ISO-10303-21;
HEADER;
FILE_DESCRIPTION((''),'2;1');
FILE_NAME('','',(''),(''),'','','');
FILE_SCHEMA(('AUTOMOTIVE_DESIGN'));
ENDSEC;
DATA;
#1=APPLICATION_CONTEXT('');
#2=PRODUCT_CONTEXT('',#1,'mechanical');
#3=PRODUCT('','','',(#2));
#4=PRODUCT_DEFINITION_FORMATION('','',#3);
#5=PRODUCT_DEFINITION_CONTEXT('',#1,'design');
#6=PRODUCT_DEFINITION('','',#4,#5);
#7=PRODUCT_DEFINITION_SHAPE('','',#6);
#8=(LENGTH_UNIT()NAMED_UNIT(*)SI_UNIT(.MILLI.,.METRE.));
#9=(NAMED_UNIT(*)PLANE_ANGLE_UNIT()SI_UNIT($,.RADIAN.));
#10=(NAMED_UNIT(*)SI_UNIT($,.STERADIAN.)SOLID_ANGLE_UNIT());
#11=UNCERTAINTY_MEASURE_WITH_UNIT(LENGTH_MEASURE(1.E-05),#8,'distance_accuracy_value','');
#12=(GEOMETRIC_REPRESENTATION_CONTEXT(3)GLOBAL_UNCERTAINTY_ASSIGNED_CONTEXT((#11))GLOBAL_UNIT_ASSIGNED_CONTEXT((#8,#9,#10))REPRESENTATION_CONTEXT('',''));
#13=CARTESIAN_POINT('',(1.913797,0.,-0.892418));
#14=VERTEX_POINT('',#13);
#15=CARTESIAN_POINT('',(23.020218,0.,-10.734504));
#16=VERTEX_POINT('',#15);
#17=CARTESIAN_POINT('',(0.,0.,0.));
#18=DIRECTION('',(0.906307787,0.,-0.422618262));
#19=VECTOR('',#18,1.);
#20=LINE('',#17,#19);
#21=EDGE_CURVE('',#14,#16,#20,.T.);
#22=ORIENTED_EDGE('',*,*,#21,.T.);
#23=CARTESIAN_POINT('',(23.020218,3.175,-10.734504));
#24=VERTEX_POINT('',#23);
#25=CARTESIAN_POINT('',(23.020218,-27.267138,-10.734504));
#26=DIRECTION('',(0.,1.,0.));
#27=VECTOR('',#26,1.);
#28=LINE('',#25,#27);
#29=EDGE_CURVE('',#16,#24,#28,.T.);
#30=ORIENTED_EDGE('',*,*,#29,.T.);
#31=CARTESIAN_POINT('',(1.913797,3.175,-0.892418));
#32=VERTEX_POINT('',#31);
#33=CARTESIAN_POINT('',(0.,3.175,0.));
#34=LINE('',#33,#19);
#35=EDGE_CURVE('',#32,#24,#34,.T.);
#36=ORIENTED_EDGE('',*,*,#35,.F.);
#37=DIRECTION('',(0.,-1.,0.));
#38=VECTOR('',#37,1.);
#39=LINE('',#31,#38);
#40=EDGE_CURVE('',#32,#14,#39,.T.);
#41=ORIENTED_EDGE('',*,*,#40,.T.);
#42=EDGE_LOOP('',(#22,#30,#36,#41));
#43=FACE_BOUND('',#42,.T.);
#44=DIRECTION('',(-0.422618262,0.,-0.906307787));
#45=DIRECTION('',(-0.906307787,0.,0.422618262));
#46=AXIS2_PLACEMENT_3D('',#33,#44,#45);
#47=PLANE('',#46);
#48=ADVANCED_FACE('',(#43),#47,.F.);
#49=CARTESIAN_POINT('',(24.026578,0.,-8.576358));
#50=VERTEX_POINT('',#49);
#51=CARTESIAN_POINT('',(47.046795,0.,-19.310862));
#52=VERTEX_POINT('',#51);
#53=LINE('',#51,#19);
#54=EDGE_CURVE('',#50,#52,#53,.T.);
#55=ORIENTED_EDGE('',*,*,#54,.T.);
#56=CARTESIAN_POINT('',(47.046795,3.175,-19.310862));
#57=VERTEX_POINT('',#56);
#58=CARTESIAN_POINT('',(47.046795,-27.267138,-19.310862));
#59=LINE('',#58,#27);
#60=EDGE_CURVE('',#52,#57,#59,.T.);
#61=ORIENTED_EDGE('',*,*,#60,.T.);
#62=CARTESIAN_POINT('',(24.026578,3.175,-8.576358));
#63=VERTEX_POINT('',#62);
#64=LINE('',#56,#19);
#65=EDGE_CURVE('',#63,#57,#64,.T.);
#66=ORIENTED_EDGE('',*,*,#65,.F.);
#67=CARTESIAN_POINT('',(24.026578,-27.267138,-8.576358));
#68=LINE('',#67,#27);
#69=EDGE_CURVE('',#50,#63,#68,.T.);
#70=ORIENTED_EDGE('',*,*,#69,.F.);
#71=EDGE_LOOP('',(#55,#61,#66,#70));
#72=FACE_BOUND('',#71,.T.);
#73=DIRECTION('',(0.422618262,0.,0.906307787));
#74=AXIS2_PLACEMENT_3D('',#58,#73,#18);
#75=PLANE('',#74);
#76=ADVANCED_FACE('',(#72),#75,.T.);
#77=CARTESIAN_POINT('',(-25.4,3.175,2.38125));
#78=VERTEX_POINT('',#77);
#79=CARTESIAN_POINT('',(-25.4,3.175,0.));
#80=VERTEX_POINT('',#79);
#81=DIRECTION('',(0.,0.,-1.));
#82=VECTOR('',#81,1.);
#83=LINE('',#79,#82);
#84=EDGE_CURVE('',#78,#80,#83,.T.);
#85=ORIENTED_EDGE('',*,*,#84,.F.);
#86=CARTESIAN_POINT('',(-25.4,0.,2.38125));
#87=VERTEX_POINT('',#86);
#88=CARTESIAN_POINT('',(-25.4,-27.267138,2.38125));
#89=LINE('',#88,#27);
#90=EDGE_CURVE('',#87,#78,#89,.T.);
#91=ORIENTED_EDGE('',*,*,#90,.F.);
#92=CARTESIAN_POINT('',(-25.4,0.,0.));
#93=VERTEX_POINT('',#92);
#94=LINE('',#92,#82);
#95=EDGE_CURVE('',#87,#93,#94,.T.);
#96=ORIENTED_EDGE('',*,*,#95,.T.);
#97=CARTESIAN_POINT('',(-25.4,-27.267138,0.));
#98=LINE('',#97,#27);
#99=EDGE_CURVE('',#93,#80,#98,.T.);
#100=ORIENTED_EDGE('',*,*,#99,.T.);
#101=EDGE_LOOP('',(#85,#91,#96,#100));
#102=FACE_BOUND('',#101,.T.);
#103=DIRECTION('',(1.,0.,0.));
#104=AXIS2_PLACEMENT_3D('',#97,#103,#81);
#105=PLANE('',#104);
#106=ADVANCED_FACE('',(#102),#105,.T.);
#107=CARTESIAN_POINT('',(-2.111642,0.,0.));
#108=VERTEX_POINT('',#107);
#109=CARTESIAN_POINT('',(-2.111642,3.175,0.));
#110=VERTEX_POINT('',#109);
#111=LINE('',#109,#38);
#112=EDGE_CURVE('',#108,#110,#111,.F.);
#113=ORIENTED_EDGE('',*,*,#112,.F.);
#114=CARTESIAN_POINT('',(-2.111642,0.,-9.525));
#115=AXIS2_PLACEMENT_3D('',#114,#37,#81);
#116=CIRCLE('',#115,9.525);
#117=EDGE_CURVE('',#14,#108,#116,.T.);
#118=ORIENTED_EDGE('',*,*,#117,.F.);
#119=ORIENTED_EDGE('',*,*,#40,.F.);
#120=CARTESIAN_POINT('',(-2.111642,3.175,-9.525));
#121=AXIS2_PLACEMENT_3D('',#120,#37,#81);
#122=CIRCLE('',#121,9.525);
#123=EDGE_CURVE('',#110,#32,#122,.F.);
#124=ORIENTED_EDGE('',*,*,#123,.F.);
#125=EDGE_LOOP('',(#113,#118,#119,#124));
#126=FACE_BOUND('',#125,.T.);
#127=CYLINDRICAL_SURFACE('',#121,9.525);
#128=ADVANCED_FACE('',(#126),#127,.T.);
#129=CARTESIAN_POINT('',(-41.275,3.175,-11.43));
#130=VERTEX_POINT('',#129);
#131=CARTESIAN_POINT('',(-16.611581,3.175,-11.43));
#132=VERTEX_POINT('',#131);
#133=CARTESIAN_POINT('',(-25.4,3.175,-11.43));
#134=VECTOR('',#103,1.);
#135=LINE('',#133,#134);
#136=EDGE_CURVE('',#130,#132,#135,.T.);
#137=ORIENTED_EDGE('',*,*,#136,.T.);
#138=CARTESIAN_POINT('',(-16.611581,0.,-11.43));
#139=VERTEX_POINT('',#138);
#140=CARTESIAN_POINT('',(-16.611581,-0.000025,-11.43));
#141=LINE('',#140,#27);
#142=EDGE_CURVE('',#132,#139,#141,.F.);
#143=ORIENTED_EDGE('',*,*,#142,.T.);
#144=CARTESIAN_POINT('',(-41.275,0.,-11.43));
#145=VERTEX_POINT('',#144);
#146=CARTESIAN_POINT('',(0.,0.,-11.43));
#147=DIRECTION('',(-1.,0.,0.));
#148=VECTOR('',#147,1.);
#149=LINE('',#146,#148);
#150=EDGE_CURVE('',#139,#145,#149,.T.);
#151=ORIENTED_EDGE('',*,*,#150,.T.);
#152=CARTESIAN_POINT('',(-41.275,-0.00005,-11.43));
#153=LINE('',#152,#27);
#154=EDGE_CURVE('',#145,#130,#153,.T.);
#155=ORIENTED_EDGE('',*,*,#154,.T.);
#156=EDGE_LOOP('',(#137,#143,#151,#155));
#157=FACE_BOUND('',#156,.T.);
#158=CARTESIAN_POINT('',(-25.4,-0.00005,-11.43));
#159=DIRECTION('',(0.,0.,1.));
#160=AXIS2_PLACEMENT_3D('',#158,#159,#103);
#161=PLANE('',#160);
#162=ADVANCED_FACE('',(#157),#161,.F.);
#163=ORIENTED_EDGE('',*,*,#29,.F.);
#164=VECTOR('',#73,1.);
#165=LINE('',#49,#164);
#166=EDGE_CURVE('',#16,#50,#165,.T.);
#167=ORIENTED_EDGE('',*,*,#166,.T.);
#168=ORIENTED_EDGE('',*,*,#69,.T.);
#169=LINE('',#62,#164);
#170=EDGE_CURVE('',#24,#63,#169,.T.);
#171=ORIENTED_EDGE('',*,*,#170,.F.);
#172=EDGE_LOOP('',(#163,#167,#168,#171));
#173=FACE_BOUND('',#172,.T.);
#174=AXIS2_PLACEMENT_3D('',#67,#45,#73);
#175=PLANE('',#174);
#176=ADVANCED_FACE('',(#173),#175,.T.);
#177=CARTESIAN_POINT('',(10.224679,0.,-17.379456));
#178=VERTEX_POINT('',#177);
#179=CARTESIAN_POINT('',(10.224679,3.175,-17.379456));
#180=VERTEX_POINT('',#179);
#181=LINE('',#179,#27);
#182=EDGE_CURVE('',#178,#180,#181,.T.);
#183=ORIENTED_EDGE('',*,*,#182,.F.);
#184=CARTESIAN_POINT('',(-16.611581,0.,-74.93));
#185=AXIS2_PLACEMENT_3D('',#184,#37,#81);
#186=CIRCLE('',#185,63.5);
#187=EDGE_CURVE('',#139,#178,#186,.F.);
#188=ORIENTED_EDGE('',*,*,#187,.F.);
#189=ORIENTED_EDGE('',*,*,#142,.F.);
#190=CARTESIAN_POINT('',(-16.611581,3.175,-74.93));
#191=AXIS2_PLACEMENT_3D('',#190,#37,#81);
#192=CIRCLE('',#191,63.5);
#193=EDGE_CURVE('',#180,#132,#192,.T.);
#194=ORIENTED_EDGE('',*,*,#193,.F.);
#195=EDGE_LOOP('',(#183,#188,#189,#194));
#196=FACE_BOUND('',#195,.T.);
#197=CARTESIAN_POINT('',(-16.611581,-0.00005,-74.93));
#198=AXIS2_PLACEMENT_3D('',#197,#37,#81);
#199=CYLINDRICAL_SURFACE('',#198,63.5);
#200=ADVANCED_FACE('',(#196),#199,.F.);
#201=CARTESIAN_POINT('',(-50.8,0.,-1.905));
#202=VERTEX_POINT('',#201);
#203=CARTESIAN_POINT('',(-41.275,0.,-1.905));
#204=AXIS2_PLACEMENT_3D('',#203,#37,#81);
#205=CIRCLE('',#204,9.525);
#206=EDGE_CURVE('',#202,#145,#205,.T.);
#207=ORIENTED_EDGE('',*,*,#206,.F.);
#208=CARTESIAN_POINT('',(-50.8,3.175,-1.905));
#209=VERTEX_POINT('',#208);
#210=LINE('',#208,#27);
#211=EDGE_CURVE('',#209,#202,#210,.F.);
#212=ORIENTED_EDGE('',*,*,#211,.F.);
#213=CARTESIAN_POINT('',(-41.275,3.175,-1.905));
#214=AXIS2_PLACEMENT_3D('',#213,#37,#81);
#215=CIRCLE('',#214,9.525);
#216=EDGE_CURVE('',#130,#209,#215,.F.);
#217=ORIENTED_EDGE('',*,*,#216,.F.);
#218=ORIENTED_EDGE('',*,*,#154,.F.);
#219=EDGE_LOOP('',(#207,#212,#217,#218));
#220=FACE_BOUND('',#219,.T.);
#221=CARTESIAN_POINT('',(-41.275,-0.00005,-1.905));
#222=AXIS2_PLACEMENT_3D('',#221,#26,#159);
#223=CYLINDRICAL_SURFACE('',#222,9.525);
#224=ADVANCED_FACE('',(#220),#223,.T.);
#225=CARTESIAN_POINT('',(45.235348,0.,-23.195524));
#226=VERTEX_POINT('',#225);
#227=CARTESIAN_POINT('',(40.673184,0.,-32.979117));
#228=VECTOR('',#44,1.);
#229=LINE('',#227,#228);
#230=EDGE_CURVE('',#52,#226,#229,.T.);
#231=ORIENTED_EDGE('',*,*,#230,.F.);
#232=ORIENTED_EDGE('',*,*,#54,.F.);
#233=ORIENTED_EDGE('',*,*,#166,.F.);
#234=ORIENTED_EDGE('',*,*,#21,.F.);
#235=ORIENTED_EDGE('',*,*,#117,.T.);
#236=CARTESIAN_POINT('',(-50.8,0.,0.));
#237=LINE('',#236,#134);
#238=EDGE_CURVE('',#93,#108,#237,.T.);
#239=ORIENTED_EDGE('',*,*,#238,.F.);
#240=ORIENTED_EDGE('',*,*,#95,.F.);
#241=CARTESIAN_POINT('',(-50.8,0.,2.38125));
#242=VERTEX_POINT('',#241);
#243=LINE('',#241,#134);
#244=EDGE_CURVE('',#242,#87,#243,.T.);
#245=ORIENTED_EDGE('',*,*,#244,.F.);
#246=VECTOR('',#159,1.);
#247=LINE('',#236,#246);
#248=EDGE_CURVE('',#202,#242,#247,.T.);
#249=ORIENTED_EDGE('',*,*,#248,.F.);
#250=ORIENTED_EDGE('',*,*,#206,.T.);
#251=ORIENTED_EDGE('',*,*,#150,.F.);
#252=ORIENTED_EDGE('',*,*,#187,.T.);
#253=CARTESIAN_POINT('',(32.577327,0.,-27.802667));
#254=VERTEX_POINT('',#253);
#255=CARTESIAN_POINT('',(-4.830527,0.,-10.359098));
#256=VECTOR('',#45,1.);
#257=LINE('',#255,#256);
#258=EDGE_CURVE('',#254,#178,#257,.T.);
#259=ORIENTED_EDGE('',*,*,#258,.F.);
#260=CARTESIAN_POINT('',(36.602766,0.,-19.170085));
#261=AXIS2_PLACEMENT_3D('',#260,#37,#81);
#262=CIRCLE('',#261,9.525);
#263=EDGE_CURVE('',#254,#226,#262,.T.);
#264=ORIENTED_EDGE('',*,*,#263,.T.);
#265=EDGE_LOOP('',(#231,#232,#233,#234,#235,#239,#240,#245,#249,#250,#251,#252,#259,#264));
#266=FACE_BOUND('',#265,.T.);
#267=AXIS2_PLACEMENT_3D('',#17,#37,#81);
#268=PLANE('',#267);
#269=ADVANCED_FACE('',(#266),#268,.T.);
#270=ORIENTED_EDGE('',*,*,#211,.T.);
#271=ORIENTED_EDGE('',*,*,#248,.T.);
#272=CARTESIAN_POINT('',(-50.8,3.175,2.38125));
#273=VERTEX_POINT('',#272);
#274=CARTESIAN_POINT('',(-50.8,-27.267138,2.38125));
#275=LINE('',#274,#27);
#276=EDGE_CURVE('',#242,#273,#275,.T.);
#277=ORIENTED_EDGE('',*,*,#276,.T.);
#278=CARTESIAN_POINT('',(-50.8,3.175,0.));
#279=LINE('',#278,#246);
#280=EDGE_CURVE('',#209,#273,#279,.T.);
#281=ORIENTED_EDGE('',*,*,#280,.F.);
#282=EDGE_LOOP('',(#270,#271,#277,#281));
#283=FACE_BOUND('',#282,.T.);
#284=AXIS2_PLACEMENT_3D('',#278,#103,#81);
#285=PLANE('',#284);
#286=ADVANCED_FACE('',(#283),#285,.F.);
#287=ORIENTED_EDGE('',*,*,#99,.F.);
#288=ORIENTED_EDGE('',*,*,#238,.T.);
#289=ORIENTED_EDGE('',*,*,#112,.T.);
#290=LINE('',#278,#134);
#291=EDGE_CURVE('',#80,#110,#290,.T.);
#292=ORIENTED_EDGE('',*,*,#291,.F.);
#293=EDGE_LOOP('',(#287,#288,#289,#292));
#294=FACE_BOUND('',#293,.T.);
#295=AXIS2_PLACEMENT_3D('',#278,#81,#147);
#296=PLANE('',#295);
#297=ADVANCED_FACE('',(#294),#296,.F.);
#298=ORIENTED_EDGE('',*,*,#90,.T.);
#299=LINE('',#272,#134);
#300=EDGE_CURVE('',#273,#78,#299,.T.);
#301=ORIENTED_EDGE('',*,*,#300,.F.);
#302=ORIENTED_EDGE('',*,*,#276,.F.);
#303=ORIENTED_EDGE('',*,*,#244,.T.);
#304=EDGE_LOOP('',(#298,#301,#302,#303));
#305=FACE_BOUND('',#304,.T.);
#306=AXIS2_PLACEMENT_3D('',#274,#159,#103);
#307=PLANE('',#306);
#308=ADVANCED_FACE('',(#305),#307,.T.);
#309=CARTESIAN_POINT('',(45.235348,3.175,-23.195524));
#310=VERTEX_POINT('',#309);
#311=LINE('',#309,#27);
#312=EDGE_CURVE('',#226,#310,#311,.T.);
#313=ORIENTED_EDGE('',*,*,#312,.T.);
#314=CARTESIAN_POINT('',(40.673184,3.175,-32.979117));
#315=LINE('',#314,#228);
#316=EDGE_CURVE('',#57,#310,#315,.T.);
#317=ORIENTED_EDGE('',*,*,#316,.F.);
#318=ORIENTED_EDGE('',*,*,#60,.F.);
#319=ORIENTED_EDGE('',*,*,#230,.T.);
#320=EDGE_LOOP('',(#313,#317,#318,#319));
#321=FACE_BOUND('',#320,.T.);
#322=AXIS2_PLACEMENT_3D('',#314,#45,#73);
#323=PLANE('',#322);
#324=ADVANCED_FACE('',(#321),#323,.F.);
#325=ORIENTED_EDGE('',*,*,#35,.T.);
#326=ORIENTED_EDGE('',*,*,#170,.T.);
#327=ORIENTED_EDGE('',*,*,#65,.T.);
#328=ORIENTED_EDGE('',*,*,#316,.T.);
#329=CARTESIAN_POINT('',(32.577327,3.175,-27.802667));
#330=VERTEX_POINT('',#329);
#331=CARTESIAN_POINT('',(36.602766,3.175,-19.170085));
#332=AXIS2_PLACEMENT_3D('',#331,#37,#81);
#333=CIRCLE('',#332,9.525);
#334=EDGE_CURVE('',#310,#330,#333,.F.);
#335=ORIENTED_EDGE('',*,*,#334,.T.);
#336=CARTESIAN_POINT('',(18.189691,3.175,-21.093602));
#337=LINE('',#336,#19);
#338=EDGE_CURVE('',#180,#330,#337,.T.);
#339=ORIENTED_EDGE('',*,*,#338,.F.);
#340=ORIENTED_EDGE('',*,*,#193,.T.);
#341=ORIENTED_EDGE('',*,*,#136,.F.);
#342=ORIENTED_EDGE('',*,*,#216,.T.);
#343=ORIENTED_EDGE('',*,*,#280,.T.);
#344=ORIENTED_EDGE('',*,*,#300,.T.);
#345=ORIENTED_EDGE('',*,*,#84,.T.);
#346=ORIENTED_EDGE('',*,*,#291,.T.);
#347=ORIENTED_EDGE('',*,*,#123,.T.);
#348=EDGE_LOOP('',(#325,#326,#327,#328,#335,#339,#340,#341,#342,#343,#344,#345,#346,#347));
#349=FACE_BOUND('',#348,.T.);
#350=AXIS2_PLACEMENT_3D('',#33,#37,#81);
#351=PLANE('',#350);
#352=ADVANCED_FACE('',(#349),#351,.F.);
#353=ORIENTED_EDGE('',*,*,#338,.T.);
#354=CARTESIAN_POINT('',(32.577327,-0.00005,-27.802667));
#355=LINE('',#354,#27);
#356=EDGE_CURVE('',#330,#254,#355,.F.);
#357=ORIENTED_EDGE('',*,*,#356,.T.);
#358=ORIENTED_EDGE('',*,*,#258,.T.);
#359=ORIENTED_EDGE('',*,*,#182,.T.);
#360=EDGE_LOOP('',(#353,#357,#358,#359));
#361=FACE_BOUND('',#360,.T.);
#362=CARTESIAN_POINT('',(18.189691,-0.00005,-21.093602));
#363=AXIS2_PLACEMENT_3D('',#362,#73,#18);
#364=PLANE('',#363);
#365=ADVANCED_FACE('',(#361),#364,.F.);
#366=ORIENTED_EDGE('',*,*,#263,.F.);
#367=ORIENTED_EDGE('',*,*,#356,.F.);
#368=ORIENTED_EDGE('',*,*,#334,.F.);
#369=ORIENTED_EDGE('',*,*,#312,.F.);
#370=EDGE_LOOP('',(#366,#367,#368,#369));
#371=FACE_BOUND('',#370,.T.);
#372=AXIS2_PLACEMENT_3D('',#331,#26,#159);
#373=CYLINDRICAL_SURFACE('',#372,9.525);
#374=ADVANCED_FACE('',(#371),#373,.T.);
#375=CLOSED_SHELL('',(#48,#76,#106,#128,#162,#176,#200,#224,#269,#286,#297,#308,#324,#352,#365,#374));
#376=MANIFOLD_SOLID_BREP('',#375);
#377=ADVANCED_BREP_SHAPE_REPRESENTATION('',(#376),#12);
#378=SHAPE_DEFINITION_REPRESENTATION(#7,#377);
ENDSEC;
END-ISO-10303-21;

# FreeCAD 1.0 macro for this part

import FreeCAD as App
import Part
import Sketcher

V = App.Vector
Q = App.Units.Quantity


def edges_at(feature, points):
    """Names of the edges that pass closest to the given points."""
    edges = feature.Shape.Edges
    near = lambda p: min(range(len(edges)), key=lambda i: edges[i].distToShape(Part.Vertex(*p))[0])
    return sorted({f"Edge{near(p) + 1}" for p in points})


def add_polygon(sketch, points):
    """Adds a closed chain of lines whose ends are joined by coincident constraints."""
    first, n = sketch.GeometryCount, len(points)
    for a, b in zip(points, points[1:] + points[:1]):
        sketch.addGeometry(Part.LineSegment(App.Vector(*a, 0), App.Vector(*b, 0)), False)
    for i in range(n):
        sketch.addConstraint(Sketcher.Constraint("Coincident", first + i, 2, first + (i + 1) % n, 1))

doc = App.newDocument("Part")
body = doc.addObject("PartDesign::Body", "Body")

sketch1 = body.newObject("Sketcher::SketchObject", "Sketch")
sketch1.AttachmentSupport = (doc.getObject("XZ_Plane"), [""])
sketch1.MapMode = "FlatFace"
add_polygon(sketch1, [(-50.8, 0), (0, 0), (46.040436, -21.469008), (40.673184, -32.979117), (-50.8, -12.7)])
sketch1.addConstraint(Sketcher.Constraint("Horizontal", 0))
sketch1.addConstraint(Sketcher.Constraint("Vertical", 4))
sketch1.addConstraint(Sketcher.Constraint("Coincident", 0, 2, -1, 1))
sketch1.addConstraint(Sketcher.Constraint("Perpendicular", 1, 2))
sketch1.addConstraint(Sketcher.Constraint("DistanceX", 0, 1, 0, 2, Q("2 in")))
sketch1.addConstraint(Sketcher.Constraint("Distance", 1, Q("2 in")))
sketch1.addConstraint(Sketcher.Constraint("DistanceY", 4, 1, 4, 2, Q("0.5 in")))
sketch1.addConstraint(Sketcher.Constraint("Angle", 1, Q("-25 deg")))
sketch1.addConstraint(Sketcher.Constraint("Distance", 2, Q("0.5 in")))
pad1 = body.newObject("PartDesign::Pad", "Pad")
pad1.Profile = sketch1
pad1.Length = Q("0.125 in")
pad1.Reversed = True

sketch2 = body.newObject("Sketcher::SketchObject", "Sketch001")
sketch2.AttachmentSupport = (doc.getObject("XZ_Plane"), [""])
sketch2.MapMode = "FlatFace"
sketch2.AttachmentOffset = App.Placement(V(0, 0, -0.125 * 25.4), App.Rotation())
add_polygon(sketch2, [(46.040436, -21.469008), (23.020218, -10.734504), (24.026578, -8.576358), (47.046795, -19.310862)])
add_polygon(sketch2, [(-50.8, 0), (-50.8, 2.38125), (-25.4, 2.38125), (-25.4, 0)])
sketch2.addConstraint(Sketcher.Constraint("Vertical", 4))
sketch2.addConstraint(Sketcher.Constraint("Horizontal", 5))
sketch2.addConstraint(Sketcher.Constraint("Vertical", 6))
sketch2.addConstraint(Sketcher.Constraint("Horizontal", 7))
sketch2.addConstraint(Sketcher.Constraint("PointOnObject", 6, 2, -1))
sketch2.addConstraint(Sketcher.Constraint("Perpendicular", 0, 1))
sketch2.addConstraint(Sketcher.Constraint("Perpendicular", 1, 2))
sketch2.addConstraint(Sketcher.Constraint("Perpendicular", 2, 3))
sketch2.addConstraint(Sketcher.Constraint("DistanceX", 5, 1, 5, 2, Q("1 in")))
sketch2.addConstraint(Sketcher.Constraint("Distance", 0, Q("1 in")))
sketch2.addConstraint(Sketcher.Constraint("DistanceX", 4, 2, -1, 1, Q("2 in")))
sketch2.addConstraint(Sketcher.Constraint("Angle", 0, Q("155 deg")))
sketch2.addConstraint(Sketcher.Constraint("DistanceY", 4, 1, 4, 2, Q("0.09375 in")))
sketch2.addConstraint(Sketcher.Constraint("Distance", 1, Q("0.09375 in")))
sketch2.addConstraint(Sketcher.Constraint("DistanceY", 1, 2, -1, 1, Q("8.576358 mm")))
sketch2.addConstraint(Sketcher.Constraint("DistanceX", -1, 1, 0, 2, Q("23.020218 mm")))
pad2 = body.newObject("PartDesign::Pad", "Pad001")
pad2.Profile = sketch2
pad2.Length = Q("0.125 in")

sketch3 = body.newObject("Sketcher::SketchObject", "Sketch002")
sketch3.AttachmentSupport = (doc.getObject("XZ_Plane"), [""])
sketch3.MapMode = "FlatFace"
sketch3.AttachmentOffset = App.Placement(V(0, 0, -0.125 * 25.4), App.Rotation())
add_polygon(sketch3, [(-50.8, -11.43), (-2.53397, -11.43), (18.189691, -21.093602), (41.209909, -31.828106), (40.673184, -32.979117), (-50.8, -12.7)])
sketch3.addConstraint(Sketcher.Constraint("Horizontal", 0))
sketch3.addConstraint(Sketcher.Constraint("Vertical", 5))
sketch3.addConstraint(Sketcher.Constraint("Parallel", 1, 2))
sketch3.addConstraint(Sketcher.Constraint("Perpendicular", 2, 3))
sketch3.addConstraint(Sketcher.Constraint("Distance", 2, Q("1 in")))
sketch3.addConstraint(Sketcher.Constraint("DistanceX", 4, 2, -1, 1, Q("2 in")))
sketch3.addConstraint(Sketcher.Constraint("Angle", 1, Q("-25 deg")))
sketch3.addConstraint(Sketcher.Constraint("DistanceY", 5, 1, 5, 2, Q("0.05 in")))
sketch3.addConstraint(Sketcher.Constraint("DistanceY", 4, 2, -1, 1, Q("0.5 in")))
sketch3.addConstraint(Sketcher.Constraint("Angle", 4, Q("167.5 deg")))
sketch3.addConstraint(Sketcher.Constraint("Distance", 3, Q("0.05 in")))
sketch3.addConstraint(Sketcher.Constraint("DistanceX", 0, 2, 2, 2, Q("1.7222 in")))
pocket1 = body.newObject("PartDesign::Pocket", "Pocket")
pocket1.Profile = sketch3
pocket1.Type = "ThroughAll"
pocket1.Reversed = True
doc.recompute()

fillet = body.newObject("PartDesign::Fillet", "Fillet")
fillet.Base = (pocket1, edges_at(pocket1, [(0, 1.587, 0), (41.21, 1.587, -31.828), (-50.8, 1.587, -11.43)]))
fillet.Radius = Q("0.375 in")
doc.recompute()

fillet2 = body.newObject("PartDesign::Fillet", "Fillet001")
fillet2.Base = (fillet, edges_at(fillet, [(-2.534, 1.587, -11.43)]))
fillet2.Radius = Q("2.5 in")

doc.recompute()
